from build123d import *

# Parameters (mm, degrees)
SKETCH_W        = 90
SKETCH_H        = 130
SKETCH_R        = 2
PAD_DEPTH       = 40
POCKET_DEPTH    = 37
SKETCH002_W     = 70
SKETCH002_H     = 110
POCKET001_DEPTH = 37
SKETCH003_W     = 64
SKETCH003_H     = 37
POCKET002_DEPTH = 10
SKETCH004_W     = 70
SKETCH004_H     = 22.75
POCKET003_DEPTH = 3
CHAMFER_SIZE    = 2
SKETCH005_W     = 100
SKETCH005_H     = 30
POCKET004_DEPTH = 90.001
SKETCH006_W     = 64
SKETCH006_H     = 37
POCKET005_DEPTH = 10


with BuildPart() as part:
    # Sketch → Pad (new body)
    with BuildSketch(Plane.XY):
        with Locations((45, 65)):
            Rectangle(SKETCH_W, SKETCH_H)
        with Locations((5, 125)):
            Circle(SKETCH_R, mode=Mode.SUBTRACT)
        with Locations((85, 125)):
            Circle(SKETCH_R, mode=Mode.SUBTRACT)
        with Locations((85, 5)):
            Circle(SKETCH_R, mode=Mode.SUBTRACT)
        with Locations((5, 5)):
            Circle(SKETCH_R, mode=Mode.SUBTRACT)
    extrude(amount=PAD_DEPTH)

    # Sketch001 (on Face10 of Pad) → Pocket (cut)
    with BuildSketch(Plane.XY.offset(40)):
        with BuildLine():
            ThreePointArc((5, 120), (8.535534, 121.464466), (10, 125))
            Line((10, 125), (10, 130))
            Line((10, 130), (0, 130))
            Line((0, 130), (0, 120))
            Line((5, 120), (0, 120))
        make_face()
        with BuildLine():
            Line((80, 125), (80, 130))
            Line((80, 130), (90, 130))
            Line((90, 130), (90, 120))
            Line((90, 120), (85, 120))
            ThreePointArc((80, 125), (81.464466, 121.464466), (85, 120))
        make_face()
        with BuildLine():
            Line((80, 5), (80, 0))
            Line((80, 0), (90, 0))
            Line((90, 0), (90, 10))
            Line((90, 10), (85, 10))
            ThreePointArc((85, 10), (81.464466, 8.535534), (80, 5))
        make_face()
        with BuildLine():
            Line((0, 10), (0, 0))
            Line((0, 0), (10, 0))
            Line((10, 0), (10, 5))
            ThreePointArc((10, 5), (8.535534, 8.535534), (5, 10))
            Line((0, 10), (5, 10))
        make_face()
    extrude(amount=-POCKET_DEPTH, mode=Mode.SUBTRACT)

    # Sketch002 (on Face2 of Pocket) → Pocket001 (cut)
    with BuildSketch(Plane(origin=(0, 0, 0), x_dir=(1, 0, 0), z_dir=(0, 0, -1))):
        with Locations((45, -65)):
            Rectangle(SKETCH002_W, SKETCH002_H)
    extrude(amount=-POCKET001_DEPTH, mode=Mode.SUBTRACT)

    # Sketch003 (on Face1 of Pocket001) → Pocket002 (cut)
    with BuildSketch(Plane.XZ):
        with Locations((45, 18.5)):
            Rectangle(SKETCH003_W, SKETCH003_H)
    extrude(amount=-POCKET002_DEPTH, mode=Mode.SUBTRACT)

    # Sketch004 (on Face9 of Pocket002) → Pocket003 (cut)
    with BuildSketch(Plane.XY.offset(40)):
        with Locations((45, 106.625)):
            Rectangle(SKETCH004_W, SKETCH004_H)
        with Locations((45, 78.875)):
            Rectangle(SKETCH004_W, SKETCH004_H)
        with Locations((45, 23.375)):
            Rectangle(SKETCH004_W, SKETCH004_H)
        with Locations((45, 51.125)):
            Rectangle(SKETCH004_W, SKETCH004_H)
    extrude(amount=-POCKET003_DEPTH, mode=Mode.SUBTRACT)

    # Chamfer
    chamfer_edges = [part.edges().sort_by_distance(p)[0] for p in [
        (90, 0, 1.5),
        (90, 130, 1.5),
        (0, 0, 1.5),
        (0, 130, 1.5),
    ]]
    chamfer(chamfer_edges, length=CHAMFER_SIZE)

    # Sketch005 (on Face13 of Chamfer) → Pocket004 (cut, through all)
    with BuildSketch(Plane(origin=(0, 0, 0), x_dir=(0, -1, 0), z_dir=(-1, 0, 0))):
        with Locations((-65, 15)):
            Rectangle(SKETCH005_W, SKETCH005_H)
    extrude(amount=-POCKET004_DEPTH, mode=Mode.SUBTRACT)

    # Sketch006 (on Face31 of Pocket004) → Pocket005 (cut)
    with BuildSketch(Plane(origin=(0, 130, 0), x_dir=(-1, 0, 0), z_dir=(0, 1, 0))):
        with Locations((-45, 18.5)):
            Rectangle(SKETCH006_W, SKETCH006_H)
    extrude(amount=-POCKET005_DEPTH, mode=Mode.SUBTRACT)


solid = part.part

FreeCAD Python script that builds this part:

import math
import FreeCAD as App
import Part
import Sketcher
Q = App.Units.Quantity


def edges_at(feature, points):
    """Names of the edges that pass closest to the given points."""
    edges = feature.Shape.Edges
    near = lambda p: min(range(len(edges)), key=lambda i: edges[i].distToShape(Part.Vertex(*p))[0])
    return sorted({f"Edge{near(p) + 1}" for p in points})

doc = App.newDocument("Part")
body = doc.addObject("PartDesign::Body", "Body")

# Sketch on XY plane
sketch1 = body.newObject("Sketcher::SketchObject", "Sketch")
sketch1.AttachmentSupport = (doc.getObject("XY_Plane"), [""])
sketch1.MapMode = "FlatFace"
sketch1.addGeometry([
    Part.LineSegment(App.Vector(0, 130, 0), App.Vector(0, 0, 0)),  # 0
    Part.LineSegment(App.Vector(0, 0, 0), App.Vector(90, 0, 0)),  # 1
    Part.LineSegment(App.Vector(90, 0, 0), App.Vector(90, 130, 0)),  # 2
    Part.LineSegment(App.Vector(90, 130, 0), App.Vector(0, 130, 0)),  # 3
    Part.Circle(App.Vector(5, 5, 0), App.Vector(0, 0, 1), 2),  # 4
    Part.Circle(App.Vector(85, 5, 0), App.Vector(0, 0, 1), 2),  # 5
    Part.Circle(App.Vector(5, 125, 0), App.Vector(0, 0, 1), 2),  # 6
    Part.Circle(App.Vector(85, 125, 0), App.Vector(0, 0, 1), 2),  # 7
], False)
sketch1.addConstraint([
    Sketcher.Constraint("Coincident", 0, 2, 1, 1),
    Sketcher.Constraint("Coincident", 1, 2, 2, 1),
    Sketcher.Constraint("Coincident", 2, 2, 3, 1),
    Sketcher.Constraint("Coincident", 3, 2, 0, 1),
    Sketcher.Constraint("Vertical", 0),
    Sketcher.Constraint("Horizontal", 1),
    Sketcher.Constraint("Vertical", 2),
    Sketcher.Constraint("Horizontal", 3),
    Sketcher.Constraint("Coincident", 0, 2, -1, 1),
    Sketcher.Constraint("Equal", 4, 5),
    Sketcher.Constraint("Equal", 5, 6),
    Sketcher.Constraint("Equal", 6, 7),
    Sketcher.Constraint("Horizontal", 4, 3, 5, 3),
    Sketcher.Constraint("Horizontal", 6, 3, 7, 3),
    Sketcher.Constraint("Vertical", 4, 3, 6, 3),
    Sketcher.Constraint("Vertical", 5, 3, 7, 3),
    Sketcher.Constraint("Diameter", 4, Q("4 mm")),
    Sketcher.Constraint("DistanceX", 1, 1, 1, 2, Q("90 mm")),
    Sketcher.Constraint("DistanceY", 0, 2, 0, 1, Q("130 mm")),
    Sketcher.Constraint("DistanceX", -1, 1, 4, 3, Q("5 mm")),
    Sketcher.Constraint("DistanceY", -1, 1, 4, 3, Q("5 mm")),
    Sketcher.Constraint("DistanceX", -1, 1, 5, 3, Q("85 mm")),
    Sketcher.Constraint("DistanceY", -1, 1, 6, 3, Q("125 mm")),
])
pad1 = body.newObject("PartDesign::Pad", "Pad")
pad1.Profile = sketch1
pad1.Length = 40

# Sketch on XY plane
sketch2 = body.newObject("Sketcher::SketchObject", "Sketch001")
sketch2.AttachmentSupport = (doc.getObject("XY_Plane"), [""])
sketch2.MapMode = "FlatFace"
sketch2.AttachmentOffset = App.Placement(App.Vector(0, 0, 40), App.Rotation())
sketch2.addGeometry([
    Part.ArcOfCircle(Part.Circle(App.Vector(5, 125, 0), App.Vector(0, 0, 1), 5), math.radians(-90), math.radians(0)),  # 0
    Part.LineSegment(App.Vector(10, 125, 0), App.Vector(10, 130, 0)),  # 1
    Part.LineSegment(App.Vector(10, 130, 0), App.Vector(0, 130, 0)),  # 2
    Part.LineSegment(App.Vector(0, 130, 0), App.Vector(0, 120, 0)),  # 3
    Part.LineSegment(App.Vector(0, 120, 0), App.Vector(5, 120, 0)),  # 4
    Part.LineSegment(App.Vector(80, 130, 0), App.Vector(80, 125, 0)),  # 5
    Part.ArcOfCircle(Part.Circle(App.Vector(85, 125, 0), App.Vector(0, 0, 1), 5), math.radians(180), math.radians(270)),  # 6
    Part.LineSegment(App.Vector(85, 120, 0), App.Vector(90, 120, 0)),  # 7
    Part.LineSegment(App.Vector(90, 120, 0), App.Vector(90, 130, 0)),  # 8
    Part.LineSegment(App.Vector(90, 130, 0), App.Vector(80, 130, 0)),  # 9
    Part.LineSegment(App.Vector(80, 5, 0), App.Vector(80, 0, 0)),  # 10
    Part.LineSegment(App.Vector(80, 0, 0), App.Vector(90, 0, 0)),  # 11
    Part.LineSegment(App.Vector(90, 0, 0), App.Vector(90, 10, 0)),  # 12
    Part.LineSegment(App.Vector(90, 10, 0), App.Vector(85, 10, 0)),  # 13
    Part.ArcOfCircle(Part.Circle(App.Vector(85, 5, 0), App.Vector(0, 0, 1), 5), math.radians(90), math.radians(180)),  # 14
    Part.LineSegment(App.Vector(0, 10, 0), App.Vector(0, 0, 0)),  # 15
    Part.LineSegment(App.Vector(0, 0, 0), App.Vector(10, 0, 0)),  # 16
    Part.LineSegment(App.Vector(10, 0, 0), App.Vector(10, 5, 0)),  # 17
    Part.ArcOfCircle(Part.Circle(App.Vector(5, 5, 0), App.Vector(0, 0, 1), 5), math.radians(0), math.radians(90)),  # 18
    Part.LineSegment(App.Vector(5, 10, 0), App.Vector(0, 10, 0)),  # 19
], False)
sketch2.addConstraint([
    Sketcher.Constraint("Tangent", 0, 2, 1, 1),
    Sketcher.Constraint("Coincident", 1, 2, 2, 1),
    Sketcher.Constraint("Coincident", 2, 2, 3, 1),
    Sketcher.Constraint("Coincident", 3, 2, 4, 1),
    Sketcher.Constraint("Tangent", 4, 2, 0, 1),
    Sketcher.Constraint("Tangent", 5, 2, 6, 1),
    Sketcher.Constraint("Tangent", 6, 2, 7, 1),
    Sketcher.Constraint("Coincident", 7, 2, 8, 1),
    Sketcher.Constraint("Coincident", 8, 2, 9, 1),
    Sketcher.Constraint("Coincident", 9, 2, 5, 1),
    Sketcher.Constraint("Coincident", 10, 2, 11, 1),
    Sketcher.Constraint("Coincident", 11, 2, 12, 1),
    Sketcher.Constraint("Coincident", 12, 2, 13, 1),
    Sketcher.Constraint("Tangent", 13, 2, 14, 1),
    Sketcher.Constraint("Tangent", 14, 2, 10, 1),
    Sketcher.Constraint("Coincident", 15, 2, 16, 1),
    Sketcher.Constraint("Coincident", 16, 2, 17, 1),
    Sketcher.Constraint("Tangent", 17, 2, 18, 1),
    Sketcher.Constraint("Tangent", 18, 2, 19, 1),
    Sketcher.Constraint("Coincident", 19, 2, 15, 1),
    Sketcher.Constraint("Vertical", 1),
    Sketcher.Constraint("Horizontal", 2),
    Sketcher.Constraint("Vertical", 3),
    Sketcher.Constraint("Horizontal", 4),
    Sketcher.Constraint("Vertical", 5),
    Sketcher.Constraint("Horizontal", 7),
    Sketcher.Constraint("Vertical", 8),
    Sketcher.Constraint("Horizontal", 9),
    Sketcher.Constraint("Vertical", 10),
    Sketcher.Constraint("Horizontal", 11),
    Sketcher.Constraint("Vertical", 12),
    Sketcher.Constraint("Horizontal", 13),
    Sketcher.Constraint("Vertical", 15),
    Sketcher.Constraint("Horizontal", 16),
    Sketcher.Constraint("Vertical", 17),
    Sketcher.Constraint("Horizontal", 19),
    Sketcher.Constraint("Coincident", 15, 2, -1, 1),
    Sketcher.Constraint("Equal", 0, 6),
    Sketcher.Constraint("Equal", 6, 14),
    Sketcher.Constraint("Equal", 14, 18),
    Sketcher.Constraint("PointOnObject", 2, 2, -2),
    Sketcher.Constraint("PointOnObject", 10, 2, -1),
    Sketcher.Constraint("Horizontal", 0, 3, 6, 3),
    Sketcher.Constraint("Horizontal", 14, 3, 18, 3),
    Sketcher.Constraint("Horizontal", 2, 2, 8, 2),
    Sketcher.Constraint("Vertical", 6, 3, 14, 3),
    Sketcher.Constraint("Vertical", 0, 3, 18, 3),
    Sketcher.Constraint("Vertical", 8, 2, 11, 2),
    Sketcher.Constraint("Equal", 4, 7),
    Sketcher.Constraint("Equal", 19, 1),
    Sketcher.Constraint("Equal", 5, 10),
    Sketcher.Constraint("Radius", 0, Q("5 mm")),
    Sketcher.Constraint("DistanceX", 2, 2, 2, 1, Q("10 mm")),
    Sketcher.Constraint("DistanceY", -1, 1, 0, 3, Q("125 mm")),
    Sketcher.Constraint("DistanceX", -1, 1, 6, 3, Q("85 mm")),
])
pocket1 = body.newObject("PartDesign::Pocket", "Pocket")
pocket1.Profile = sketch2
pocket1.Length = 37

# Sketch on XY plane
sketch3 = body.newObject("Sketcher::SketchObject", "Sketch002")
sketch3.AttachmentSupport = (doc.getObject("XY_Plane"), [""])
sketch3.MapMode = "FlatFace"
sketch3.addGeometry([
    Part.LineSegment(App.Vector(10, 10, 0), App.Vector(10, 120, 0)),
    Part.LineSegment(App.Vector(10, 120, 0), App.Vector(80, 120, 0)),
    Part.LineSegment(App.Vector(80, 120, 0), App.Vector(80, 10, 0)),
    Part.LineSegment(App.Vector(80, 10, 0), App.Vector(10, 10, 0)),
], False)
sketch3.addConstraint([
    Sketcher.Constraint("Coincident", 0, 2, 1, 1),
    Sketcher.Constraint("Coincident", 1, 2, 2, 1),
    Sketcher.Constraint("Coincident", 2, 2, 3, 1),
    Sketcher.Constraint("Coincident", 3, 2, 0, 1),
    Sketcher.Constraint("Vertical", 0),
    Sketcher.Constraint("Horizontal", 1),
    Sketcher.Constraint("Vertical", 2),
    Sketcher.Constraint("Horizontal", 3),
    Sketcher.Constraint("DistanceX", 1, 1, 1, 2, Q("70 mm")),
    Sketcher.Constraint("DistanceY", 0, 1, 0, 2, Q("110 mm")),
    Sketcher.Constraint("DistanceX", -1, 1, 0, 2, Q("10 mm")),
    Sketcher.Constraint("DistanceY", -1, 1, 0, 2, Q("120 mm")),
])
pocket2 = body.newObject("PartDesign::Pocket", "Pocket001")
pocket2.Profile = sketch3
pocket2.Length = 37
pocket2.Reversed = True

# Sketch on XZ plane
sketch4 = body.newObject("Sketcher::SketchObject", "Sketch003")
sketch4.AttachmentSupport = (doc.getObject("XZ_Plane"), [""])
sketch4.MapMode = "FlatFace"
sketch4.addGeometry([
    Part.LineSegment(App.Vector(13, 37, 0), App.Vector(13, 0, 0)),
    Part.LineSegment(App.Vector(13, 0, 0), App.Vector(77, 0, 0)),
    Part.LineSegment(App.Vector(77, 0, 0), App.Vector(77, 37, 0)),
    Part.LineSegment(App.Vector(77, 37, 0), App.Vector(13, 37, 0)),
], False)
sketch4.addConstraint([
    Sketcher.Constraint("Coincident", 0, 2, 1, 1),
    Sketcher.Constraint("Coincident", 1, 2, 2, 1),
    Sketcher.Constraint("Coincident", 2, 2, 3, 1),
    Sketcher.Constraint("Coincident", 3, 2, 0, 1),
    Sketcher.Constraint("Vertical", 0),
    Sketcher.Constraint("Horizontal", 1),
    Sketcher.Constraint("Vertical", 2),
    Sketcher.Constraint("Horizontal", 3),
    Sketcher.Constraint("PointOnObject", 0, 2, -1),
    Sketcher.Constraint("DistanceX", 1, 1, 1, 2, Q("64 mm")),
    Sketcher.Constraint("DistanceY", 0, 2, 0, 1, Q("37 mm")),
    Sketcher.Constraint("DistanceX", -1, 1, 0, 2, Q("13 mm")),
])
pocket3 = body.newObject("PartDesign::Pocket", "Pocket002")
pocket3.Profile = sketch4
pocket3.Length = 10

# Sketch on XY plane
sketch5 = body.newObject("Sketcher::SketchObject", "Sketch004")
sketch5.AttachmentSupport = (doc.getObject("XY_Plane"), [""])
sketch5.MapMode = "FlatFace"
sketch5.AttachmentOffset = App.Placement(App.Vector(0, 0, 40), App.Rotation())
sketch5.addGeometry([
    Part.LineSegment(App.Vector(10, 118, 0), App.Vector(10, 95, 0)),  # 0
    Part.LineSegment(App.Vector(10, 95, 0), App.Vector(80, 95, 0)),  # 1
    Part.LineSegment(App.Vector(80, 95, 0), App.Vector(80, 118, 0)),  # 2
    Part.LineSegment(App.Vector(80, 118, 0), App.Vector(10, 118, 0)),  # 3
    Part.LineSegment(App.Vector(10, 90, 0), App.Vector(10, 68, 0)),  # 4
    Part.LineSegment(App.Vector(10, 68, 0), App.Vector(80, 68, 0)),  # 5
    Part.LineSegment(App.Vector(80, 68, 0), App.Vector(80, 90, 0)),  # 6
    Part.LineSegment(App.Vector(80, 90, 0), App.Vector(10, 90, 0)),  # 7
    Part.LineSegment(App.Vector(10, 35, 0), App.Vector(10, 12, 0)),  # 8
    Part.LineSegment(App.Vector(10, 12, 0), App.Vector(80, 12, 0)),  # 9
    Part.LineSegment(App.Vector(80, 12, 0), App.Vector(80, 35, 0)),  # 10
    Part.LineSegment(App.Vector(80, 35, 0), App.Vector(10, 35, 0)),  # 11
    Part.LineSegment(App.Vector(10, 62, 0), App.Vector(10, 40, 0)),  # 12
    Part.LineSegment(App.Vector(10, 40, 0), App.Vector(80, 40, 0)),  # 13
    Part.LineSegment(App.Vector(80, 40, 0), App.Vector(80, 62, 0)),  # 14
    Part.LineSegment(App.Vector(80, 62, 0), App.Vector(10, 62, 0)),  # 15
], False)
sketch5.addConstraint([
    Sketcher.Constraint("Coincident", 0, 2, 1, 1),
    Sketcher.Constraint("Coincident", 1, 2, 2, 1),
    Sketcher.Constraint("Coincident", 2, 2, 3, 1),
    Sketcher.Constraint("Coincident", 3, 2, 0, 1),
    Sketcher.Constraint("Coincident", 4, 2, 5, 1),
    Sketcher.Constraint("Coincident", 5, 2, 6, 1),
    Sketcher.Constraint("Coincident", 6, 2, 7, 1),
    Sketcher.Constraint("Coincident", 7, 2, 4, 1),
    Sketcher.Constraint("Coincident", 8, 2, 9, 1),
    Sketcher.Constraint("Coincident", 9, 2, 10, 1),
    Sketcher.Constraint("Coincident", 10, 2, 11, 1),
    Sketcher.Constraint("Coincident", 11, 2, 8, 1),
    Sketcher.Constraint("Coincident", 12, 2, 13, 1),
    Sketcher.Constraint("Coincident", 13, 2, 14, 1),
    Sketcher.Constraint("Coincident", 14, 2, 15, 1),
    Sketcher.Constraint("Coincident", 15, 2, 12, 1),
    Sketcher.Constraint("Vertical", 0),
    Sketcher.Constraint("Horizontal", 1),
    Sketcher.Constraint("Vertical", 2),
    Sketcher.Constraint("Horizontal", 3),
    Sketcher.Constraint("Vertical", 4),
    Sketcher.Constraint("Horizontal", 5),
    Sketcher.Constraint("Vertical", 6),
    Sketcher.Constraint("Horizontal", 7),
    Sketcher.Constraint("Vertical", 8),
    Sketcher.Constraint("Horizontal", 9),
    Sketcher.Constraint("Vertical", 10),
    Sketcher.Constraint("Horizontal", 11),
    Sketcher.Constraint("Vertical", 12),
    Sketcher.Constraint("Horizontal", 13),
    Sketcher.Constraint("Vertical", 14),
    Sketcher.Constraint("Horizontal", 15),
    Sketcher.Constraint("Vertical", 3, 2, 4, 2),
    Sketcher.Constraint("Vertical", 2, 2, 5, 2),
    Sketcher.Constraint("Vertical", 7, 2, 8, 2),
    Sketcher.Constraint("Vertical", 6, 2, 9, 2),
    Sketcher.Constraint("Vertical", 11, 2, 12, 2),
    Sketcher.Constraint("Vertical", 10, 2, 13, 2),
    Sketcher.Constraint("Equal", 2, 4),
    Sketcher.Constraint("Equal", 6, 8),
    Sketcher.Constraint("Equal", 10, 12),
    Sketcher.Constraint("DistanceX", 1, 1, 1, 2, Q("70 mm")),
    Sketcher.Constraint("DistanceX", -1, 1, 0, 2, Q("10 mm")),
    Sketcher.Constraint("DistanceY", -1, 1, 2, 2, Q("118 mm")),
    Sketcher.Constraint("DistanceY", -1, 1, 8, 2, Q("12 mm")),
    Sketcher.Constraint("DistanceY", 6, 2, 1, 2, Q("5 mm")),
    Sketcher.Constraint("DistanceY", 11, 2, 12, 2, Q("5 mm")),
    Sketcher.Constraint("DistanceY", 14, 2, 5, 2, Q("5 mm")),
])
pocket4 = body.newObject("PartDesign::Pocket", "Pocket003")
pocket4.Profile = sketch5
pocket4.Length = 3
doc.recompute()

chamfer = body.newObject("PartDesign::Chamfer", "Chamfer")
chamfer.Base = (pocket4, edges_at(pocket4, [
    (90, 0, 1.5),
    (90, 130, 1.5),
    (0, 0, 1.5),
    (0, 130, 1.5),
]))
chamfer.Size = 2

# Sketch on YZ plane
sketch6 = body.newObject("Sketcher::SketchObject", "Sketch005")
sketch6.AttachmentSupport = (doc.getObject("YZ_Plane"), [""])
sketch6.MapMode = "FlatFace"
sketch6.addGeometry([
    Part.LineSegment(App.Vector(115, 30, 0), App.Vector(115, 0, 0)),
    Part.LineSegment(App.Vector(115, 0, 0), App.Vector(15, 0, 0)),
    Part.LineSegment(App.Vector(15, 0, 0), App.Vector(15, 30, 0)),
    Part.LineSegment(App.Vector(15, 30, 0), App.Vector(115, 30, 0)),
], False)
sketch6.addConstraint([
    Sketcher.Constraint("Coincident", 0, 2, 1, 1),
    Sketcher.Constraint("Coincident", 1, 2, 2, 1),
    Sketcher.Constraint("Coincident", 2, 2, 3, 1),
    Sketcher.Constraint("Coincident", 3, 2, 0, 1),
    Sketcher.Constraint("Vertical", 0),
    Sketcher.Constraint("Horizontal", 1),
    Sketcher.Constraint("Vertical", 2),
    Sketcher.Constraint("Horizontal", 3),
    Sketcher.Constraint("PointOnObject", 0, 2, -1),
    Sketcher.Constraint("DistanceX", 1, 2, 1, 1, Q("100 mm")),
    Sketcher.Constraint("DistanceY", 0, 2, 0, 1, Q("30 mm")),
    Sketcher.Constraint("DistanceX", -1, 1, 0, 2, Q("115 mm")),
])
pocket5 = body.newObject("PartDesign::Pocket", "Pocket004")
pocket5.Profile = sketch6
pocket5.Type = "ThroughAll"
pocket5.Reversed = True

# Sketch on XZ plane
sketch7 = body.newObject("Sketcher::SketchObject", "Sketch006")
sketch7.AttachmentSupport = (doc.getObject("XZ_Plane"), [""])
sketch7.MapMode = "FlatFace"
sketch7.AttachmentOffset = App.Placement(App.Vector(0, 0, -130), App.Rotation())
sketch7.addGeometry([
    Part.LineSegment(App.Vector(77, 37, 0), App.Vector(77, 0, 0)),
    Part.LineSegment(App.Vector(77, 0, 0), App.Vector(13, 0, 0)),
    Part.LineSegment(App.Vector(13, 0, 0), App.Vector(13, 37, 0)),
    Part.LineSegment(App.Vector(13, 37, 0), App.Vector(77, 37, 0)),
], False)
sketch7.addConstraint([
    Sketcher.Constraint("Coincident", 0, 2, 1, 1),
    Sketcher.Constraint("Coincident", 1, 2, 2, 1),
    Sketcher.Constraint("Coincident", 2, 2, 3, 1),
    Sketcher.Constraint("Coincident", 3, 2, 0, 1),
    Sketcher.Constraint("Vertical", 0),
    Sketcher.Constraint("Horizontal", 1),
    Sketcher.Constraint("Vertical", 2),
    Sketcher.Constraint("Horizontal", 3),
    Sketcher.Constraint("PointOnObject", 0, 2, -1),
    Sketcher.Constraint("DistanceX", 1, 2, 1, 1, Q("64 mm")),
    Sketcher.Constraint("DistanceY", 0, 2, 0, 1, Q("37 mm")),
    Sketcher.Constraint("DistanceX", -1, 1, 0, 2, Q("77 mm")),
])
pocket6 = body.newObject("PartDesign::Pocket", "Pocket005")
pocket6.Profile = sketch7
pocket6.Length = 10
pocket6.Reversed = True

doc.recompute()
